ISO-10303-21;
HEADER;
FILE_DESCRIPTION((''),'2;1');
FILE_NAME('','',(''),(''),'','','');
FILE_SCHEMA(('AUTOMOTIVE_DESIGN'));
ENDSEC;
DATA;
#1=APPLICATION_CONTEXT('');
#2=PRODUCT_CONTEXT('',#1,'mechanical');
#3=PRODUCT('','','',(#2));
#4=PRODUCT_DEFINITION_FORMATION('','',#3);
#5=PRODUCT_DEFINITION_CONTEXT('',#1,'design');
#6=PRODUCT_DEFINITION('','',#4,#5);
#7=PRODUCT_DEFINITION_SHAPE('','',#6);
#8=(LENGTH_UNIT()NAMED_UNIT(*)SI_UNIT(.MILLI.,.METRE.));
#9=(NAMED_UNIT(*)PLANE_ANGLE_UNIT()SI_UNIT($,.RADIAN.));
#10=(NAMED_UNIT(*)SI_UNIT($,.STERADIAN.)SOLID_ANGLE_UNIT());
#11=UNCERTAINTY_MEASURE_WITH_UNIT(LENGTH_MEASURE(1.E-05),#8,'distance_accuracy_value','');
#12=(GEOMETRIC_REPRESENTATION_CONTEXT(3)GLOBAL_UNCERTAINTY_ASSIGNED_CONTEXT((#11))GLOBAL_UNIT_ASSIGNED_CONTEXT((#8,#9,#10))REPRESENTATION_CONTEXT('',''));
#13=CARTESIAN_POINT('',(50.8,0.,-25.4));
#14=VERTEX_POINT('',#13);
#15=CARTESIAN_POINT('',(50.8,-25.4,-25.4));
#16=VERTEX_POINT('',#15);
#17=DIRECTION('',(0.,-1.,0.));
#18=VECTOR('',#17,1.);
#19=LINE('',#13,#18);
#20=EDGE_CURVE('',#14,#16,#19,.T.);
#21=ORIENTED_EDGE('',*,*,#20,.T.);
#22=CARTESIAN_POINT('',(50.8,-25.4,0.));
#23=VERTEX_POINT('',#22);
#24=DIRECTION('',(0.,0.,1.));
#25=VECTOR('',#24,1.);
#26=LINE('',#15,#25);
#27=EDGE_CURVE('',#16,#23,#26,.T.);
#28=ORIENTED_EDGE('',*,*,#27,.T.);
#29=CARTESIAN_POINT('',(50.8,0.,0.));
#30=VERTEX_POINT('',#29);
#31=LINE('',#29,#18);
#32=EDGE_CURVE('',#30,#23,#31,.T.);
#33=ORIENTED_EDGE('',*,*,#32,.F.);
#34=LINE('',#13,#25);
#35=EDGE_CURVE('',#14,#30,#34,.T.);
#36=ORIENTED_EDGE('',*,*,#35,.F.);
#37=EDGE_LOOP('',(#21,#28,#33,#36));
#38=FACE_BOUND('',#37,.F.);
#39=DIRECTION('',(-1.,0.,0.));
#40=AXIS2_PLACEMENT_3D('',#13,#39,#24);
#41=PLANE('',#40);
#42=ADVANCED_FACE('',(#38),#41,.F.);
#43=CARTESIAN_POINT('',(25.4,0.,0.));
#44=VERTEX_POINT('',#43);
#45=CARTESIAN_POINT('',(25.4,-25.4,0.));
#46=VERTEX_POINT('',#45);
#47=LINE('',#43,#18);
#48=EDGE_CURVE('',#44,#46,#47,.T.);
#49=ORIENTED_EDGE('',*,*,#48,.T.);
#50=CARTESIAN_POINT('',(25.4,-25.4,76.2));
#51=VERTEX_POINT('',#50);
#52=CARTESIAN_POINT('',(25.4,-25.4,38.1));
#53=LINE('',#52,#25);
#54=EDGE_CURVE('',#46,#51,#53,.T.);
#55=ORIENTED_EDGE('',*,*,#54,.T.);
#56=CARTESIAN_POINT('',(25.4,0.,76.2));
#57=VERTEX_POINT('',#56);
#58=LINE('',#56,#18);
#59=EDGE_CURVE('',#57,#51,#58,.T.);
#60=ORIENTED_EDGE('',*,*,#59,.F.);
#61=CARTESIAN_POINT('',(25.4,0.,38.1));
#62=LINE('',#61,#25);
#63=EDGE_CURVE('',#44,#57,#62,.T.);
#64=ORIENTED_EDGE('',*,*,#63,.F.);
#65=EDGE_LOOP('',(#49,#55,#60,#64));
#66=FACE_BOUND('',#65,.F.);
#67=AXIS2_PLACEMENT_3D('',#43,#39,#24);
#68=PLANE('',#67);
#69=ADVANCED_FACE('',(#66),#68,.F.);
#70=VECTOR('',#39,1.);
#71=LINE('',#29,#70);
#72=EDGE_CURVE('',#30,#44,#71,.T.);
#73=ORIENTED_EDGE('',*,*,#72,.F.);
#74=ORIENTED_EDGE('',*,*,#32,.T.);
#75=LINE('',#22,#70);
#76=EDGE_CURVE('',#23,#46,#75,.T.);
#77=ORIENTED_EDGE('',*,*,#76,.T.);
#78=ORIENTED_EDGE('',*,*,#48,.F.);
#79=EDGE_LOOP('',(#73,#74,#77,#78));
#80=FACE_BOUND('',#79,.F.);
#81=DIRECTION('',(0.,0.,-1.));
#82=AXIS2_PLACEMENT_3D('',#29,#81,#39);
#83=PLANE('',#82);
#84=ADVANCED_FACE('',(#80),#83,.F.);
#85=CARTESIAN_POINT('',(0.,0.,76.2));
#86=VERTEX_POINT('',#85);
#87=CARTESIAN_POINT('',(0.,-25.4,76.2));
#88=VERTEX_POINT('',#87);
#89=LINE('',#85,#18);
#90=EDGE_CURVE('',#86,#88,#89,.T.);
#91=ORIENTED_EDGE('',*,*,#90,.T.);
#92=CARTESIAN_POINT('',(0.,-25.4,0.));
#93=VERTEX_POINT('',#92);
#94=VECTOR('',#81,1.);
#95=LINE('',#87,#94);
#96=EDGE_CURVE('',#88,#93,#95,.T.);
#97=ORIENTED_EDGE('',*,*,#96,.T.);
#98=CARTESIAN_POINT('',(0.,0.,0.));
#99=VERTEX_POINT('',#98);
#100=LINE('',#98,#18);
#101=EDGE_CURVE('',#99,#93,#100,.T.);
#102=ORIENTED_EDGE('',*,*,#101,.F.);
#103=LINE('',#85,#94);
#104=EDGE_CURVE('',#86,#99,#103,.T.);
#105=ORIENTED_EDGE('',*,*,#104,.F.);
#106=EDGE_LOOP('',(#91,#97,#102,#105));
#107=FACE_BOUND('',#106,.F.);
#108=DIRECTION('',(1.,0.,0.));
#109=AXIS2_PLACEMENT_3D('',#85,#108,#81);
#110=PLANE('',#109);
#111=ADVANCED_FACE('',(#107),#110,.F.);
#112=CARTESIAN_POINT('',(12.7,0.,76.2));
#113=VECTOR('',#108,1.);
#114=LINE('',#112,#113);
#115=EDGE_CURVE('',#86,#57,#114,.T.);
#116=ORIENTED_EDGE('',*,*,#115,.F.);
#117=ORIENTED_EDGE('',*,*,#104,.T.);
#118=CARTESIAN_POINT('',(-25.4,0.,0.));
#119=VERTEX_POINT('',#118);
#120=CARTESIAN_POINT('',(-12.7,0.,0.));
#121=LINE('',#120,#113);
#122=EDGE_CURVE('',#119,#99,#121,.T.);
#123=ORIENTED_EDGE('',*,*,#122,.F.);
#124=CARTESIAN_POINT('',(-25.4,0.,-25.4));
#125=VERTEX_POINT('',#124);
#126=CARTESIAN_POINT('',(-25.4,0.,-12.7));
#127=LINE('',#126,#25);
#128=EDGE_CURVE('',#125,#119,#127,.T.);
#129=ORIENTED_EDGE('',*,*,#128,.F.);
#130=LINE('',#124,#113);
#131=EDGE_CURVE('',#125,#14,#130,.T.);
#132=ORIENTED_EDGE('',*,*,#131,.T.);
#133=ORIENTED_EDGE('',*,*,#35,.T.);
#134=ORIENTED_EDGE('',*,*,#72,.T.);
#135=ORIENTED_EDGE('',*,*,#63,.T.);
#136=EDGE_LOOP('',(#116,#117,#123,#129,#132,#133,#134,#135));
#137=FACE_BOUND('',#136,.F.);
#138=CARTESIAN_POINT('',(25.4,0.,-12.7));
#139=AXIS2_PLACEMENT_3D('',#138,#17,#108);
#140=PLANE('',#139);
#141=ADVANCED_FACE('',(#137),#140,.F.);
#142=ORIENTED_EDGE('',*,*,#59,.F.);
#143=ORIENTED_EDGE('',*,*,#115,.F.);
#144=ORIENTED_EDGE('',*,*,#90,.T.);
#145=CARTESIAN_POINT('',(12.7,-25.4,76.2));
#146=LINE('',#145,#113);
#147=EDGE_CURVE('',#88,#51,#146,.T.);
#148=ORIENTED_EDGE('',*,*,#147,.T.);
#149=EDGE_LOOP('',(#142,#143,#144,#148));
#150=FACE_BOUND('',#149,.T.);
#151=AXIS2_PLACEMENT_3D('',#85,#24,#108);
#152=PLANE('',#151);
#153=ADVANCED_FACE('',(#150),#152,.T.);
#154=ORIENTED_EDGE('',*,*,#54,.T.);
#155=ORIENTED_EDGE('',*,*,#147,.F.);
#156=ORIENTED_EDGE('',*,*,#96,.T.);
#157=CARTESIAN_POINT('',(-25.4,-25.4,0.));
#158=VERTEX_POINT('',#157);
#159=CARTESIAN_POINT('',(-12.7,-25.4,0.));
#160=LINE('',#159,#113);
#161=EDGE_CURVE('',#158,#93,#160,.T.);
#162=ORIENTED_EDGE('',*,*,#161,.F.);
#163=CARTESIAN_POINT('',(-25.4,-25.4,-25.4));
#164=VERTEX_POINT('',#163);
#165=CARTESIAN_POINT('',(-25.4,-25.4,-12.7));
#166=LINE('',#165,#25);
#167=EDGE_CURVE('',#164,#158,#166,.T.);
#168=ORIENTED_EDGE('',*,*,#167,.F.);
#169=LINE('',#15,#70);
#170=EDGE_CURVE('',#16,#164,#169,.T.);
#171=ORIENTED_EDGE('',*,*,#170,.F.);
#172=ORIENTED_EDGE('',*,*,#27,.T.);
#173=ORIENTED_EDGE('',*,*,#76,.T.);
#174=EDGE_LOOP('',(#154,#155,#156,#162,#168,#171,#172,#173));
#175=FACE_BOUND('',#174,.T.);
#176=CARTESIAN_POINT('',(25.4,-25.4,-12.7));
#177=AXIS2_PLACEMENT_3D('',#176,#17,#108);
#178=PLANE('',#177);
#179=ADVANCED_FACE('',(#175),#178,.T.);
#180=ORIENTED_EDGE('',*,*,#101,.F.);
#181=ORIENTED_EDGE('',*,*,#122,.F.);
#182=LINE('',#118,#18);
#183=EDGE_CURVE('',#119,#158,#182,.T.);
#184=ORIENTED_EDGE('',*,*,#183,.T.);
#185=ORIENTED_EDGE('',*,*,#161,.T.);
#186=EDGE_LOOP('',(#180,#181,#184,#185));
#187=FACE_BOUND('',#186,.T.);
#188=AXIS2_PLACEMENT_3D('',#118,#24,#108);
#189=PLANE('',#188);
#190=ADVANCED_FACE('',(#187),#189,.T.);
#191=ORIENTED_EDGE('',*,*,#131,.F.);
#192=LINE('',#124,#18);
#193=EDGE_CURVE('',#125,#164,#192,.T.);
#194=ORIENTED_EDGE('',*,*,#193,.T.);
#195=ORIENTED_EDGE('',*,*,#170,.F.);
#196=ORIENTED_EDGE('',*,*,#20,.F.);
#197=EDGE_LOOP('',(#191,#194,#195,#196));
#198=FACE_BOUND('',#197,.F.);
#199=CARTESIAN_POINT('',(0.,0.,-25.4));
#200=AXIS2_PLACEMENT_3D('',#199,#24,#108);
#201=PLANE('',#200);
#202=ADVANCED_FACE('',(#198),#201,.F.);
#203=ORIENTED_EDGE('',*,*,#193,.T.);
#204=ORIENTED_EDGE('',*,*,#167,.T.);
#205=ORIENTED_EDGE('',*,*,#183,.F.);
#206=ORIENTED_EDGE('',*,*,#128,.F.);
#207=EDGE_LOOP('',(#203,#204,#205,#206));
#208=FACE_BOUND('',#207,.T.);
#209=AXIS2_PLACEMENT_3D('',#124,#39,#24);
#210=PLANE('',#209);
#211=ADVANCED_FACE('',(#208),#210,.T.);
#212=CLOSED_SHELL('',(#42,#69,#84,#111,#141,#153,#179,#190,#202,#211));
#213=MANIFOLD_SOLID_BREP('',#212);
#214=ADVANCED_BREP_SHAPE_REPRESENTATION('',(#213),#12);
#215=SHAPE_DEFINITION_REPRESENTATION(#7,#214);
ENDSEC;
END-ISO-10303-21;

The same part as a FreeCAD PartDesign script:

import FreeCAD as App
import Part
import Sketcher

V = App.Vector
Q = App.Units.Quantity


def add_polygon(sketch, points):
    """Adds a closed chain of lines whose ends are joined by coincident constraints."""
    first, n = sketch.GeometryCount, len(points)
    for a, b in zip(points, points[1:] + points[:1]):
        sketch.addGeometry(Part.LineSegment(App.Vector(*a, 0), App.Vector(*b, 0)), False)
    for i in range(n):
        sketch.addConstraint(Sketcher.Constraint("Coincident", first + i, 2, first + (i + 1) % n, 1))

doc = App.newDocument("Part")
body = doc.addObject("PartDesign::Body", "Body")

# Sketch on XZ plane
sketch1 = body.newObject("Sketcher::SketchObject", "Sketch")
sketch1.AttachmentSupport = (doc.getObject("XZ_Plane"), [""])
sketch1.MapMode = "FlatFace"
add_polygon(sketch1, [(-25.4, 0), (-25.4, -25.4), (0, -25.4), (0, 0)])  # lines 0-3
sketch1.addConstraint([
    Sketcher.Constraint("Vertical", 0),
    Sketcher.Constraint("Horizontal", 1),
    Sketcher.Constraint("Vertical", 2),
    Sketcher.Constraint("Horizontal", 3),
    Sketcher.Constraint("Coincident", 2, 2, -1, 1),
    Sketcher.Constraint("Equal", 3, 0),
    Sketcher.Constraint("DistanceX", 1, 1, 1, 2, Q("1 in")),
])
pad1 = body.newObject("PartDesign::Pad", "Pad")
pad1.Profile = sketch1
pad1.Length = Q("1 in")

# Sketch on XZ plane
sketch2 = body.newObject("Sketcher::SketchObject", "Sketch001")
sketch2.AttachmentSupport = (doc.getObject("XZ_Plane"), [""])
sketch2.MapMode = "FlatFace"
add_polygon(sketch2, [(0, -25.4), (50.8, -25.4), (50.8, 0), (25.4, 0), (25.4, 76.2), (0, 76.2)])  # lines 0-5
sketch2.addConstraint([
    Sketcher.Constraint("Horizontal", 0),
    Sketcher.Constraint("Vertical", 1),
    Sketcher.Constraint("Horizontal", 2),
    Sketcher.Constraint("Vertical", 3),
    Sketcher.Constraint("Horizontal", 4),
    Sketcher.Constraint("Vertical", 5),
    Sketcher.Constraint("PointOnObject", 1, 2, -1),
    Sketcher.Constraint("PointOnObject", 4, 2, -2),
    Sketcher.Constraint("Equal", 2, 4),
    Sketcher.Constraint("Equal", 4, 1),
    Sketcher.Constraint("DistanceX", 0, 1, 0, 2, Q("2 in")),
    Sketcher.Constraint("DistanceY", 3, 1, 3, 2, Q("3 in")),
])
pad2 = body.newObject("PartDesign::Pad", "Pad001")
pad2.Profile = sketch2
pad2.Length = Q("1 in")

doc.recompute()
